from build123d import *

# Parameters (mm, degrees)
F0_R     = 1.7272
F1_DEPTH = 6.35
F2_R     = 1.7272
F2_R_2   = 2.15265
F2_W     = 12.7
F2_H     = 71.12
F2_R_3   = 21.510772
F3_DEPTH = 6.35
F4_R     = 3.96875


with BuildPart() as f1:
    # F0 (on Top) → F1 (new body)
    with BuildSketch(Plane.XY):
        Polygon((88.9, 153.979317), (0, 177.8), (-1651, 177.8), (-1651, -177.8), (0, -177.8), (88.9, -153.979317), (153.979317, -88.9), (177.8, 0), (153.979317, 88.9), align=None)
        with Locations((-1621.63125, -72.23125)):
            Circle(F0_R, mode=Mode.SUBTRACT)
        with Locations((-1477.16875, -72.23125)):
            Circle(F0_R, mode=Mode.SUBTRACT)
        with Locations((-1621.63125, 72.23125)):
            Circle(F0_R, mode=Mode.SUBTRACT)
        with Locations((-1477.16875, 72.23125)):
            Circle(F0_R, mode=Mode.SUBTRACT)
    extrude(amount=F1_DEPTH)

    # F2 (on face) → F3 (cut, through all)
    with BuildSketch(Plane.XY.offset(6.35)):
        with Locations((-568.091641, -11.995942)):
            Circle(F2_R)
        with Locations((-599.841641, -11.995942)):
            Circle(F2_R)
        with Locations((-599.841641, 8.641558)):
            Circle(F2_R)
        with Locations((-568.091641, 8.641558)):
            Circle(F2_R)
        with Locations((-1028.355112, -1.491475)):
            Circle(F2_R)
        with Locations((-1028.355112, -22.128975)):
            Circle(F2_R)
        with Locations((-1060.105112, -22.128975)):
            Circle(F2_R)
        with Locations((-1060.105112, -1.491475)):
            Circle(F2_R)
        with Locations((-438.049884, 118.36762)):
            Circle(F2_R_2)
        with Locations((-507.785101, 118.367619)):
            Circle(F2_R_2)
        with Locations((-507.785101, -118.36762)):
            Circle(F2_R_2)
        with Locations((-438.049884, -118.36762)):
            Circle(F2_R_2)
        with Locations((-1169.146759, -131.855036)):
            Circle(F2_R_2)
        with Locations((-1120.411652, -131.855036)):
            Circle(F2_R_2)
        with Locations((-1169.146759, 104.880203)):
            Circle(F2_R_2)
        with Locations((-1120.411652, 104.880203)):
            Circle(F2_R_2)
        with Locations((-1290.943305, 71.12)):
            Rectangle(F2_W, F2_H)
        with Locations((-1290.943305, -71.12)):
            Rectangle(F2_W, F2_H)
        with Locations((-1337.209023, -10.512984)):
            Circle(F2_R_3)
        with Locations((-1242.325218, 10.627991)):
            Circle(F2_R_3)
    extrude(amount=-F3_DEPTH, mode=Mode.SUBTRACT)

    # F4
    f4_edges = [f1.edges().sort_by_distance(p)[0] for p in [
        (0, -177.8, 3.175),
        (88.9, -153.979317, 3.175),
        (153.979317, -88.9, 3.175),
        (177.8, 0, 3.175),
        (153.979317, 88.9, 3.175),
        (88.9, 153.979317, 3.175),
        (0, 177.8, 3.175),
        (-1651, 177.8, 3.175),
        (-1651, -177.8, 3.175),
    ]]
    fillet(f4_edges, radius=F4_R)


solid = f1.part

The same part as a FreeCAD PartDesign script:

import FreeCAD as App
import Part
import Sketcher

V = App.Vector
Q = App.Units.Quantity


def edges_at(feature, points):
    """Names of the edges that pass closest to the given points."""
    edges = feature.Shape.Edges
    near = lambda p: min(range(len(edges)), key=lambda i: edges[i].distToShape(Part.Vertex(*p))[0])
    return sorted({f"Edge{near(p) + 1}" for p in points})

doc = App.newDocument("Part")
body = doc.addObject("PartDesign::Body", "Body")

# Sketch on XY plane
sketch1 = doc.addObject("Sketcher::SketchObject", "Sketch")
body.addObject(sketch1)
sketch1.AttachmentSupport = (doc.XY_Plane, [""])
sketch1.MapMode = "FlatFace"
sketch1.addGeometry([
    Part.LineSegment(V(88.9, 154, 0), V(0, 177.8, 0)),  # 0
    Part.LineSegment(V(0, 177.8, 0), V(-1651, 177.8, 0)),  # 1
    Part.LineSegment(V(-1651, 177.8, 0), V(-1651, -177.8, 0)),  # 2
    Part.LineSegment(V(-1651, -177.8, 0), V(0, -177.8, 0)),  # 3
    Part.LineSegment(V(0, -177.8, 0), V(88.9, -154, 0)),  # 4
    Part.LineSegment(V(88.9, -154, 0), V(154, -88.9, 0)),  # 5
    Part.LineSegment(V(154, -88.9, 0), V(177.8, 0, 0)),  # 6
    Part.LineSegment(V(177.8, 0, 0), V(154, 88.9, 0)),  # 7
    Part.LineSegment(V(154, 88.9, 0), V(88.9, 154, 0)),  # 8
    Part.Circle(V(-1621.6, -72.2, 0), V(0, 0, 1), 1.7),  # 9
    Part.Circle(V(-1477.2, -72.2, 0), V(0, 0, 1), 1.7),  # 10
    Part.Circle(V(-1621.6, 72.2, 0), V(0, 0, 1), 1.7),  # 11
    Part.Circle(V(-1477.2, 72.2, 0), V(0, 0, 1), 1.7),  # 12
], False)
sketch1.addConstraint([
    Sketcher.Constraint("Coincident", 0, 2, 1, 1),
    Sketcher.Constraint("Coincident", 1, 2, 2, 1),
    Sketcher.Constraint("Coincident", 2, 2, 3, 1),
    Sketcher.Constraint("Coincident", 3, 2, 4, 1),
    Sketcher.Constraint("Coincident", 4, 2, 5, 1),
    Sketcher.Constraint("Coincident", 5, 2, 6, 1),
    Sketcher.Constraint("Coincident", 6, 2, 7, 1),
    Sketcher.Constraint("Coincident", 7, 2, 8, 1),
    Sketcher.Constraint("Coincident", 8, 2, 0, 1),
    Sketcher.Constraint("Horizontal", 1),
    Sketcher.Constraint("Vertical", 2),
    Sketcher.Constraint("Horizontal", 3),
    Sketcher.Constraint("Equal", 9, 10),
    Sketcher.Constraint("Equal", 10, 11),
    Sketcher.Constraint("Equal", 11, 12),
    Sketcher.Constraint("Symmetric", 0, 2, 3, 2, -1, 1),
    Sketcher.Constraint("Symmetric", 9, 3, 11, 3, -1),
    Sketcher.Constraint("Symmetric", 10, 3, 12, 3, -1),
    Sketcher.Constraint("Symmetric", 5, 2, 7, 2, -1),
    Sketcher.Constraint("Symmetric", 4, 2, 8, 2, -1),
    Sketcher.Constraint("PointOnObject", 0, 2, -2),
    Sketcher.Constraint("PointOnObject", 6, 2, -1),
    Sketcher.Constraint("Perpendicular", 0, 6),
    Sketcher.Constraint("Perpendicular", 5, 8),
    Sketcher.Constraint("Horizontal", 9, 3, 10, 3),
    Sketcher.Constraint("Equal", 4, 5),
    Sketcher.Constraint("Equal", 5, 6),
    Sketcher.Constraint("DistanceX", 1, 2, 1, 1, Q("65 in")),
    Sketcher.Constraint("DistanceY", 2, 2, 2, 1, Q("14 in")),
    Sketcher.Constraint("Diameter", 9, Q("0.136 in")),
    Sketcher.Constraint("Angle", 0, Q("165 deg")),
    Sketcher.Constraint("DistanceX", 9, 3, -1, 1, Q("63.84375 in")),
    Sketcher.Constraint("DistanceY", 9, 3, -1, 1, Q("2.84375 in")),
    Sketcher.Constraint("DistanceX", 10, 3, -1, 1, Q("58.15625 in")),
])
pad1 = doc.addObject("PartDesign::Pad", "Pad")
body.addObject(pad1)
pad1.Profile = sketch1
pad1.Length = Q("0.25 in")

# Sketch on XY plane
sketch2 = doc.addObject("Sketcher::SketchObject", "Sketch001")
body.addObject(sketch2)
sketch2.AttachmentSupport = (doc.XY_Plane, [""])
sketch2.MapMode = "FlatFace"
sketch2.AttachmentOffset = App.Placement(V(0, 0, 0.25 * 25.4), App.Rotation())
sketch2.addGeometry([
    Part.Circle(V(-568.1, -12, 0), V(0, 0, 1), 1.7),  # 0
    Part.Circle(V(-599.8, -12, 0), V(0, 0, 1), 1.7),  # 1
    Part.Circle(V(-599.8, 8.6, 0), V(0, 0, 1), 1.7),  # 2
    Part.Circle(V(-568.1, 8.6, 0), V(0, 0, 1), 1.7),  # 3
    Part.Circle(V(-1028.4, -1.5, 0), V(0, 0, 1), 1.7),  # 4
    Part.Circle(V(-1028.4, -22.1, 0), V(0, 0, 1), 1.7),  # 5
    Part.Circle(V(-1060.1, -22.1, 0), V(0, 0, 1), 1.7),  # 6
    Part.Circle(V(-1060.1, -1.5, 0), V(0, 0, 1), 1.7),  # 7
    Part.Circle(V(-438, 118.4, 0), V(0, 0, 1), 2.2),  # 8
    Part.Circle(V(-507.8, 118.4, 0), V(0, 0, 1), 2.2),  # 9
    Part.Circle(V(-507.8, -118.4, 0), V(0, 0, 1), 2.2),  # 10
    Part.Circle(V(-438, -118.4, 0), V(0, 0, 1), 2.2),  # 11
    Part.Circle(V(-1169.1, -131.9, 0), V(0, 0, 1), 2.2),  # 12
    Part.Circle(V(-1120.4, -131.9, 0), V(0, 0, 1), 2.2),  # 13
    Part.Circle(V(-1169.1, 104.9, 0), V(0, 0, 1), 2.2),  # 14
    Part.Circle(V(-1120.4, 104.9, 0), V(0, 0, 1), 2.2),  # 15
    Part.LineSegment(V(-1297.3, 106.7, 0), V(-1297.3, 35.6, 0)),  # 16
    Part.LineSegment(V(-1297.3, 35.6, 0), V(-1284.6, 35.6, 0)),  # 17
    Part.LineSegment(V(-1284.6, 35.6, 0), V(-1284.6, 106.7, 0)),  # 18
    Part.LineSegment(V(-1284.6, 106.7, 0), V(-1297.3, 106.7, 0)),  # 19
    Part.LineSegment(V(-1297.3, -35.6, 0), V(-1297.3, -106.7, 0)),  # 20
    Part.LineSegment(V(-1297.3, -106.7, 0), V(-1284.6, -106.7, 0)),  # 21
    Part.LineSegment(V(-1284.6, -106.7, 0), V(-1284.6, -35.6, 0)),  # 22
    Part.LineSegment(V(-1284.6, -35.6, 0), V(-1297.3, -35.6, 0)),  # 23
    Part.Circle(V(-1337.2, -10.5, 0), V(0, 0, 1), 21.5),  # 24
    Part.Circle(V(-1242.3, 10.6, 0), V(0, 0, 1), 21.5),  # 25
], False)
sketch2.addConstraint([
    Sketcher.Constraint("Coincident", 16, 2, 17, 1),
    Sketcher.Constraint("Coincident", 17, 2, 18, 1),
    Sketcher.Constraint("Coincident", 18, 2, 19, 1),
    Sketcher.Constraint("Coincident", 19, 2, 16, 1),
    Sketcher.Constraint("Coincident", 20, 2, 21, 1),
    Sketcher.Constraint("Coincident", 21, 2, 22, 1),
    Sketcher.Constraint("Coincident", 22, 2, 23, 1),
    Sketcher.Constraint("Coincident", 23, 2, 20, 1),
    Sketcher.Constraint("Vertical", 16),
    Sketcher.Constraint("Horizontal", 17),
    Sketcher.Constraint("Vertical", 18),
    Sketcher.Constraint("Horizontal", 19),
    Sketcher.Constraint("Vertical", 20),
    Sketcher.Constraint("Horizontal", 21),
    Sketcher.Constraint("Vertical", 22),
    Sketcher.Constraint("Horizontal", 23),
    Sketcher.Constraint("Equal", 0, 1),
    Sketcher.Constraint("Equal", 1, 2),
    Sketcher.Constraint("Equal", 2, 3),
    Sketcher.Constraint("Equal", 3, 4),
    Sketcher.Constraint("Equal", 4, 5),
    Sketcher.Constraint("Equal", 5, 6),
    Sketcher.Constraint("Equal", 6, 7),
    Sketcher.Constraint("Equal", 8, 9),
    Sketcher.Constraint("Equal", 9, 10),
    Sketcher.Constraint("Equal", 10, 11),
    Sketcher.Constraint("Equal", 11, 12),
    Sketcher.Constraint("Equal", 12, 13),
    Sketcher.Constraint("Equal", 13, 14),
    Sketcher.Constraint("Equal", 14, 15),
    Sketcher.Constraint("Equal", 24, 25),
    Sketcher.Constraint("Symmetric", 9, 3, 10, 3, -1),
    Sketcher.Constraint("Symmetric", 8, 3, 11, 3, -1),
    Sketcher.Constraint("Symmetric", 19, 2, 20, 2, -1),
    Sketcher.Constraint("Symmetric", 17, 2, 22, 2, -1),
    Sketcher.Constraint("Horizontal", 0, 3, 1, 3),
    Sketcher.Constraint("Horizontal", 2, 3, 3, 3),
    Sketcher.Constraint("Horizontal", 5, 3, 6, 3),
    Sketcher.Constraint("Horizontal", 4, 3, 7, 3),
    Sketcher.Constraint("Horizontal", 8, 3, 9, 3),
    Sketcher.Constraint("Horizontal", 12, 3, 13, 3),
    Sketcher.Constraint("Horizontal", 14, 3, 15, 3),
    Sketcher.Constraint("Vertical", 1, 3, 2, 3),
    Sketcher.Constraint("Vertical", 0, 3, 3, 3),
    Sketcher.Constraint("Vertical", 4, 3, 5, 3),
    Sketcher.Constraint("Vertical", 6, 3, 7, 3),
    Sketcher.Constraint("Vertical", 12, 3, 14, 3),
    Sketcher.Constraint("Vertical", 13, 3, 15, 3),
    Sketcher.Constraint("Diameter", 0, Q("0.136 in")),
    Sketcher.Constraint("DistanceX", 17, 1, 17, 2, Q("0.5 in")),
    Sketcher.Constraint("DistanceY", 16, 2, 16, 1, Q("2.8 in")),
    Sketcher.Constraint("Diameter", 8, Q("0.1695 in")),
    Sketcher.Constraint("DistanceY", -1, 1, 16, 2, Q("1.4 in")),
    Sketcher.Constraint("DistanceX", 1, 3, 0, 3, Q("1.25 in")),
    Sketcher.Constraint("DistanceX", 6, 3, 5, 3, Q("1.25 in")),
    Sketcher.Constraint("DistanceY", 1, 3, 2, 3, Q("0.8125 in")),
    Sketcher.Constraint("DistanceY", 5, 3, 4, 3, Q("0.8125 in")),
    Sketcher.Constraint("Diameter", 24, Q("43.021544 mm")),
    Sketcher.Constraint("DistanceX", 12, 3, -1, 1, Q("46.0294 in")),
    Sketcher.Constraint("DistanceX", 9, 3, -1, 1, Q("507.785101 mm")),
    Sketcher.Constraint("DistanceX", 0, 3, -1, 1, Q("568.091641 mm")),
    Sketcher.Constraint("DistanceX", 4, 3, -1, 1, Q("1028.355112 mm")),
    Sketcher.Constraint("DistanceY", -1, 1, 8, 3, Q("118.36762 mm")),
    Sketcher.Constraint("DistanceX", 13, 3, -1, 1, Q("1120.411652 mm")),
    Sketcher.Constraint("DistanceX", 25, 3, -1, 1, Q("1242.325218 mm")),
    Sketcher.Constraint("DistanceY", -1, 1, 25, 3, Q("10.627991 mm")),
    Sketcher.Constraint("DistanceY", 3, 3, 8, 3, Q("109.726062 mm")),
    Sketcher.Constraint("DistanceY", 12, 3, 6, 3, Q("109.726061 mm")),
    Sketcher.Constraint("DistanceY", 12, 3, 14, 3, Q("236.735239 mm")),
    Sketcher.Constraint("DistanceX", 24, 3, 15, 3, Q("216.797371 mm")),
    Sketcher.Constraint("DistanceY", 24, 3, 7, 3, Q("9.021509 mm")),
    Sketcher.Constraint("DistanceY", 25, 3, 14, 3, Q("94.252212 mm")),
    Sketcher.Constraint("DistanceX", 8, 3, -1, 1, Q("438.049884 mm")),
    Sketcher.Constraint("DistanceX", 16, 2, -1, 1, Q("1297.293305 mm")),
])
pocket1 = doc.addObject("PartDesign::Pocket", "Pocket")
body.addObject(pocket1)
pocket1.Profile = sketch2
pocket1.Type = "ThroughAll"
doc.recompute()

fillet = doc.addObject("PartDesign::Fillet", "Fillet")
body.addObject(fillet)
fillet.Base = (pocket1, edges_at(pocket1, [
    (0, -177.8, 3.175),
    (88.9, -153.979, 3.175),
    (153.979, -88.9, 3.175),
    (177.8, 0, 3.175),
    (153.979, 88.9, 3.175),
    (88.9, 153.979, 3.175),
    (0, 177.8, 3.175),
    (-1651, 177.8, 3.175),
    (-1651, -177.8, 3.175),
]))
fillet.Radius = Q("0.15625 in")

doc.recompute()
